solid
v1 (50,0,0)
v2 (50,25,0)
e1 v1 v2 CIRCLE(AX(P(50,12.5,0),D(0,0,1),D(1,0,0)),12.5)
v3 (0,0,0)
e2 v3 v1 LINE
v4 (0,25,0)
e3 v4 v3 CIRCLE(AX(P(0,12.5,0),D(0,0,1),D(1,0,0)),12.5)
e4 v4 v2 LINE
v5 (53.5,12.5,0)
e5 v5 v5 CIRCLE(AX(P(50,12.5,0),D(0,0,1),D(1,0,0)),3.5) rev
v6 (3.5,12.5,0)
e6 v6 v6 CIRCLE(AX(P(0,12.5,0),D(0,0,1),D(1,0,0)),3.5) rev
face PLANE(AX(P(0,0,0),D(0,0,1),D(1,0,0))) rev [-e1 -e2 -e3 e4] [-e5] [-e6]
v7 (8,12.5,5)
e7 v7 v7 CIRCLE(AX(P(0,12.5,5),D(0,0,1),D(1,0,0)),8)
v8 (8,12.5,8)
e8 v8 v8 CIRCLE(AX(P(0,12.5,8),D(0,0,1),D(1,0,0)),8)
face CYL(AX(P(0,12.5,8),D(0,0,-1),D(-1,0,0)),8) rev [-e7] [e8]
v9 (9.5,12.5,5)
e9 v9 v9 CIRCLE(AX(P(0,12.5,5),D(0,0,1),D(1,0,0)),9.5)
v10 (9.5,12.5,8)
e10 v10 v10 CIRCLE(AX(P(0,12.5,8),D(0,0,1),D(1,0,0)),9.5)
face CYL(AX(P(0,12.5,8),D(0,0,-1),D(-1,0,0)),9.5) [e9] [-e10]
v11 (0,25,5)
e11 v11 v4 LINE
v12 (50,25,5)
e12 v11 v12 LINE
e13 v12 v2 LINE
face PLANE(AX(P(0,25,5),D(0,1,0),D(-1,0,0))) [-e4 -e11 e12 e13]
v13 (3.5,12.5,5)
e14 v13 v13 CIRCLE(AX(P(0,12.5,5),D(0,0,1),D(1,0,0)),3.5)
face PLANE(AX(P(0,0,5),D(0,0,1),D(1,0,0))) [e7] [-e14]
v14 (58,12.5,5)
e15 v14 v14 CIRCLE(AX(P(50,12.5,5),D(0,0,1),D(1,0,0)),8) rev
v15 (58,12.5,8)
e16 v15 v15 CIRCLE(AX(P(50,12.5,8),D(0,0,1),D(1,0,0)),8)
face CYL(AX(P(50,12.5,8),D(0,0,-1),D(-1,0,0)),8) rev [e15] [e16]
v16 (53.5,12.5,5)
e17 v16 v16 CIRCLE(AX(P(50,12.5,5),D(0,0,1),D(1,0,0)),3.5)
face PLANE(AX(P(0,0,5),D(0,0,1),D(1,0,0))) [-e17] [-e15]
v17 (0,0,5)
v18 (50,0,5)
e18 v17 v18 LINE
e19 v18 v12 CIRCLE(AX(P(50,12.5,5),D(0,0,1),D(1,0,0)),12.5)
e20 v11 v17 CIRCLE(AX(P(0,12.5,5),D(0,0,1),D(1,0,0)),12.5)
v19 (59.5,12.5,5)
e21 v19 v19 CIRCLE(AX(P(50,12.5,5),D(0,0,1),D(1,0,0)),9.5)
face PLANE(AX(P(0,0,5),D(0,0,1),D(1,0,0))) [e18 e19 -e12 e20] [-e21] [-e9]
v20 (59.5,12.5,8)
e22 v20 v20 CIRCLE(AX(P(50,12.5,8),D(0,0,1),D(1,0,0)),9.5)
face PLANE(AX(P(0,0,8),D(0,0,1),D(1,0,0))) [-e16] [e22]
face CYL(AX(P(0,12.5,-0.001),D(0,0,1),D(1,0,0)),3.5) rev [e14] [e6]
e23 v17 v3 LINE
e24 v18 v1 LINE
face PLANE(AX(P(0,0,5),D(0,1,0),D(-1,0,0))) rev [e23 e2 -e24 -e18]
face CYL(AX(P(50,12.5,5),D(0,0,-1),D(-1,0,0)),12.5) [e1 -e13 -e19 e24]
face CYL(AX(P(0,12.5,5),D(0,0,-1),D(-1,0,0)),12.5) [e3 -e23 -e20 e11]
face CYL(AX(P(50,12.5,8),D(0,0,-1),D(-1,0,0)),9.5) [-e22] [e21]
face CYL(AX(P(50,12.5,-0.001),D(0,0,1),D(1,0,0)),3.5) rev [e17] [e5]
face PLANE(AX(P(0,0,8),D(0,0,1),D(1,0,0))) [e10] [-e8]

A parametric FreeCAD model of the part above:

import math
import FreeCAD as App
import Part
import Sketcher
from FreeCAD import Vector

doc = App.newDocument("Part")
body = doc.addObject("PartDesign::Body", "Body")

sketch1 = body.newObject("Sketcher::SketchObject", "Sketch")
sketch1.AttachmentSupport = (doc.getObject("XY_Plane"), [""])
sketch1.MapMode = "FlatFace"
sketch1.addGeometry([
    Part.LineSegment(Vector(0, 0, 0), Vector(50, 0, 0)),
    Part.ArcOfCircle(Part.Circle(Vector(50, 12.5, 0), Vector(0, 0, 1), 12.5), math.radians(-90), math.radians(90)),
    Part.LineSegment(Vector(50, 25, 0), Vector(0, 25, 0)),
    Part.ArcOfCircle(Part.Circle(Vector(0, 12.5, 0), Vector(0, 0, 1), 12.5), math.radians(90), math.radians(270)),
], False)
sketch1.addConstraint([
    Sketcher.Constraint("Tangent", 0, 2, 1, 1),
    Sketcher.Constraint("Tangent", 1, 2, 2, 1),
    Sketcher.Constraint("Tangent", 2, 2, 3, 1),
    Sketcher.Constraint("Tangent", 3, 2, 0, 1),
    Sketcher.Constraint("Horizontal", 0),
    Sketcher.Constraint("Horizontal", 2),
    Sketcher.Constraint("Coincident", 3, 2, -1, 1),
    Sketcher.Constraint("Radius", 1, 12.5),
    Sketcher.Constraint("DistanceX", 0, 1, 0, 2, 50.0),
])
pad1 = body.newObject("PartDesign::Pad", "Pad")
pad1.Profile = sketch1
pad1.Length = 5

sketch2 = body.newObject("Sketcher::SketchObject", "Sketch001")
sketch2.AttachmentSupport = (doc.getObject("XY_Plane"), [""])
sketch2.MapMode = "FlatFace"
sketch2.AttachmentOffset = App.Placement(Vector(0, 0, 5), App.Rotation())
sketch2.addGeometry(Part.Circle(Vector(0, 12.5, 0), Vector(0, 0, 1), 3.5), False)
sketch2.addConstraint([
    Sketcher.Constraint("PointOnObject", 0, 3, -2),
    Sketcher.Constraint("Diameter", 0, 7.0),
    Sketcher.Constraint("DistanceY", -1, 1, 0, 3, 12.5),
])
pocket1 = body.newObject("PartDesign::Pocket", "Pocket")
pocket1.Profile = sketch2
pocket1.Type = "UpToFirst"

sketch3 = body.newObject("Sketcher::SketchObject", "Sketch002")
sketch3.AttachmentSupport = (doc.getObject("XY_Plane"), [""])
sketch3.MapMode = "FlatFace"
sketch3.AttachmentOffset = App.Placement(Vector(0, 0, 5), App.Rotation())
sketch3.addGeometry(Part.Circle(Vector(50, 12.5, 0), Vector(0, 0, 1), 3.5), False)
sketch3.addConstraint([
    Sketcher.Constraint("Diameter", 0, 7.0),
    Sketcher.Constraint("DistanceX", -1, 1, 0, 3, 50.0),
    Sketcher.Constraint("DistanceY", -1, 1, 0, 3, 12.5),
])
pocket2 = body.newObject("PartDesign::Pocket", "Pocket001")
pocket2.Profile = sketch3
pocket2.Type = "UpToFirst"

sketch4 = body.newObject("Sketcher::SketchObject", "Sketch003")
sketch4.AttachmentSupport = (doc.getObject("XY_Plane"), [""])
sketch4.MapMode = "FlatFace"
sketch4.AttachmentOffset = App.Placement(Vector(0, 0, 5), App.Rotation())
sketch4.addGeometry([
    Part.Circle(Vector(0, 12.5, 0), Vector(0, 0, 1), 9.5),
    Part.Circle(Vector(0, 12.5, 0), Vector(0, 0, 1), 8),
    Part.Circle(Vector(50, 12.5, 0), Vector(0, 0, 1), 9.5),
    Part.Circle(Vector(50, 12.5, 0), Vector(0, 0, 1), 8),
], False)
sketch4.addConstraint([
    Sketcher.Constraint("Coincident", 1, 3, 0, 3),
    Sketcher.Constraint("Coincident", 3, 3, 2, 3),
    Sketcher.Constraint("Equal", 0, 2),
    Sketcher.Constraint("Equal", 1, 3),
    Sketcher.Constraint("PointOnObject", 0, 3, -2),
    Sketcher.Constraint("Horizontal", 1, 3, 2, 3),
    Sketcher.Constraint("Diameter", 0, 19.0),
    Sketcher.Constraint("Diameter", 1, 16.0),
    Sketcher.Constraint("DistanceX", -1, 1, 2, 3, 50.0),
    Sketcher.Constraint("DistanceY", -1, 1, 0, 3, 12.5),
])
pad2 = body.newObject("PartDesign::Pad", "Pad001")
pad2.Profile = sketch4
pad2.Length = 3

doc.recompute()
